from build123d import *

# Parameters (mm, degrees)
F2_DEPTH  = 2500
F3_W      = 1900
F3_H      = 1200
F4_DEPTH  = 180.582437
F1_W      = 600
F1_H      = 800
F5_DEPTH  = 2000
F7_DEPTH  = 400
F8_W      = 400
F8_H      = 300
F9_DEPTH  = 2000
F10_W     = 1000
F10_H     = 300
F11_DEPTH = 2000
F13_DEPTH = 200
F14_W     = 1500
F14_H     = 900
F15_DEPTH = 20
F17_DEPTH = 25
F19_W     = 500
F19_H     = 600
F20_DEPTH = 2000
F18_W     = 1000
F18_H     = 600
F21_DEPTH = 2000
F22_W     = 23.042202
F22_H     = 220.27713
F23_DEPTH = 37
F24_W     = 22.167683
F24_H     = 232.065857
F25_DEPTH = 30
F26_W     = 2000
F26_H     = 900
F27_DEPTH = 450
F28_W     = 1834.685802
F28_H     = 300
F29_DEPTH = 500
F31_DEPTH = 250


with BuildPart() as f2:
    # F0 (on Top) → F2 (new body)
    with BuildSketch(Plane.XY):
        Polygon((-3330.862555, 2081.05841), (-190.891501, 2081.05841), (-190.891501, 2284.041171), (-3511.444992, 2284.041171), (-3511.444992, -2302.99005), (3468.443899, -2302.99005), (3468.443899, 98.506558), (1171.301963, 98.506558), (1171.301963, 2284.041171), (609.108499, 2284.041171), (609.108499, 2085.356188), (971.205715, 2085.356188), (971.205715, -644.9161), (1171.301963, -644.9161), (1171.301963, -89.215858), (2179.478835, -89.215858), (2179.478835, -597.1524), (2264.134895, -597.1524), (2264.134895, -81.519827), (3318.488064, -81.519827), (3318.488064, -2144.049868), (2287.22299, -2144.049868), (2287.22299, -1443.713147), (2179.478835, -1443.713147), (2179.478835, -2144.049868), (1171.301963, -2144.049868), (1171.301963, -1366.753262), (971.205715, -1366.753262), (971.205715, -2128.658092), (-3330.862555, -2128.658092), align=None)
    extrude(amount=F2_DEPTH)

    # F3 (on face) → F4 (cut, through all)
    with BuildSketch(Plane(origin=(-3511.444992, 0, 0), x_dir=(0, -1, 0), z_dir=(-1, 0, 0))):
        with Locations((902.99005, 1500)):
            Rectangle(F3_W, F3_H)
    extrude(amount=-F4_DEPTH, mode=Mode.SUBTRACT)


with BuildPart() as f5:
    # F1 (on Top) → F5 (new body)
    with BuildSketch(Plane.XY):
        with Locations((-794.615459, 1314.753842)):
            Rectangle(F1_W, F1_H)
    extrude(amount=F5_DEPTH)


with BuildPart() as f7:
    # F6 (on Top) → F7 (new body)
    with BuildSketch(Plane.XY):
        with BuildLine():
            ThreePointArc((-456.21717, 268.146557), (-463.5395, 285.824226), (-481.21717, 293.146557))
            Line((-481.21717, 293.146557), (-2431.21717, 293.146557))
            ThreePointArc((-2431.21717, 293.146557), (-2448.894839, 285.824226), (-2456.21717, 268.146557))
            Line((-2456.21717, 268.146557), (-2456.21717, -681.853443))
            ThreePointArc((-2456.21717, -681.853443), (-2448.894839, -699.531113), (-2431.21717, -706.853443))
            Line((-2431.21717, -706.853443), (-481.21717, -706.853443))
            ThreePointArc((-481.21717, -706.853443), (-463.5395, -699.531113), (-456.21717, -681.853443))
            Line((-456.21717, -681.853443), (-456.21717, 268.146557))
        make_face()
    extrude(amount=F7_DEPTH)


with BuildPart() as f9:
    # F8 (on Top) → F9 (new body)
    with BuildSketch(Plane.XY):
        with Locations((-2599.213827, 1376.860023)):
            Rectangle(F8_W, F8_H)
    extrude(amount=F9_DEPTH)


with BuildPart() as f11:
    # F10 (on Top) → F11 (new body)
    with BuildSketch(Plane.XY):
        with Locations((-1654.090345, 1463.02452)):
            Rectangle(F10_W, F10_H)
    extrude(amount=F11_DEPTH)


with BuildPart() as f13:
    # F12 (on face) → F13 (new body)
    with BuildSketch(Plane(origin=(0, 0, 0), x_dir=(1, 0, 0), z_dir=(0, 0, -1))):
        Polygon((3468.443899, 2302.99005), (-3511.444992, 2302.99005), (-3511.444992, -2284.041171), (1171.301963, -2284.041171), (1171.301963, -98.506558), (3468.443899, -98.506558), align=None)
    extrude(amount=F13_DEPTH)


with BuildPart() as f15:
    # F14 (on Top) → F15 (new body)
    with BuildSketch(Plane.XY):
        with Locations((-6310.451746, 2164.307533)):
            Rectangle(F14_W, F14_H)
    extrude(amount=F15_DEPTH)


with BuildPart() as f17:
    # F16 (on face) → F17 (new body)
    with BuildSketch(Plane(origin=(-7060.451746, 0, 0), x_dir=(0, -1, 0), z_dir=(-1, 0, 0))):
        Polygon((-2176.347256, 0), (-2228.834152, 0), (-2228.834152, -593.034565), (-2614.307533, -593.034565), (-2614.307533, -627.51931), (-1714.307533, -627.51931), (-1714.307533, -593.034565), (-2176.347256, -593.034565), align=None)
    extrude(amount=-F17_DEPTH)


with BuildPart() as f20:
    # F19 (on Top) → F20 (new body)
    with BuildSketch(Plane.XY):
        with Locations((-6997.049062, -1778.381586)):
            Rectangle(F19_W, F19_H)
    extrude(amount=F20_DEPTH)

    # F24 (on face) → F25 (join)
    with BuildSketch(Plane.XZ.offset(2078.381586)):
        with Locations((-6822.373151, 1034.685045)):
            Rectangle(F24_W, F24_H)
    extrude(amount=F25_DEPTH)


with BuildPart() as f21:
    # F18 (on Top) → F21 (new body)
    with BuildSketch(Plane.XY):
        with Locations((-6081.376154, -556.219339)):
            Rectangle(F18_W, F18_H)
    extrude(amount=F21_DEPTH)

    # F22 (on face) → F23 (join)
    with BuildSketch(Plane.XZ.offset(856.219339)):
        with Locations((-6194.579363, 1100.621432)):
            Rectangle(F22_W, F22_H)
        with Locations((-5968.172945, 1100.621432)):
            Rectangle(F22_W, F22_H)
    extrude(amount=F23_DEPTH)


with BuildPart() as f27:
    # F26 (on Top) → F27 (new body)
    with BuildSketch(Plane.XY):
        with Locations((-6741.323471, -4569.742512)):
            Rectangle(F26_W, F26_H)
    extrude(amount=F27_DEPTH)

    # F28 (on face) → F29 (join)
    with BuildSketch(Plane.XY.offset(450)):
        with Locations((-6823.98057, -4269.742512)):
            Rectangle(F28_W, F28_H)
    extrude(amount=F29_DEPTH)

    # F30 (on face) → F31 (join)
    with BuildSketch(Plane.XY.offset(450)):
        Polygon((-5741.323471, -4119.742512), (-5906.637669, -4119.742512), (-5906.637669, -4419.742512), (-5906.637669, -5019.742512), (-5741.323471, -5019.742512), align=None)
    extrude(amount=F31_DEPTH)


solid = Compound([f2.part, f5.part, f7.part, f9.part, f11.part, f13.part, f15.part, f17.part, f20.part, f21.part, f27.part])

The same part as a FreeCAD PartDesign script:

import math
import FreeCAD as App
import Part
import Sketcher
from FreeCAD import Vector
Q = App.Units.Quantity

doc = App.newDocument("Part")
body = doc.addObject("PartDesign::Body", "Body")

# Sketch on XY plane
sketch1 = body.newObject("Sketcher::SketchObject", "Sketch")
sketch1.AttachmentSupport = (doc.getObject("XY_Plane"), [""])
sketch1.MapMode = "FlatFace"
sketch1.addGeometry(Part.LineSegment(Vector(-3330.862555, 2081.05841, 0), Vector(-190.891501, 2081.05841, 0)), False)
sketch1.addGeometry(Part.LineSegment(Vector(-190.891501, 2081.05841, 0), Vector(-190.891501, 2284.041171, 0)), False)
sketch1.addGeometry(Part.LineSegment(Vector(-190.891501, 2284.041171, 0), Vector(-3511.444992, 2284.041171, 0)), False)
sketch1.addGeometry(Part.LineSegment(Vector(-3511.444992, 2284.041171, 0), Vector(-3511.444992, -2302.99005, 0)), False)
sketch1.addGeometry(Part.LineSegment(Vector(-3511.444992, -2302.99005, 0), Vector(3468.443899, -2302.99005, 0)), False)
sketch1.addGeometry(Part.LineSegment(Vector(3468.443899, -2302.99005, 0), Vector(3468.443899, 98.506558, 0)), False)
sketch1.addGeometry(Part.LineSegment(Vector(3468.443899, 98.506558, 0), Vector(1171.301963, 98.506558, 0)), False)
sketch1.addGeometry(Part.LineSegment(Vector(1171.301963, 98.506558, 0), Vector(1171.301963, 2284.041171, 0)), False)
sketch1.addGeometry(Part.LineSegment(Vector(1171.301963, 2284.041171, 0), Vector(609.108499, 2284.041171, 0)), False)
sketch1.addGeometry(Part.LineSegment(Vector(609.108499, 2284.041171, 0), Vector(609.108499, 2085.356188, 0)), False)
sketch1.addGeometry(Part.LineSegment(Vector(609.108499, 2085.356188, 0), Vector(971.205715, 2085.356188, 0)), False)
sketch1.addGeometry(Part.LineSegment(Vector(971.205715, 2085.356188, 0), Vector(971.205715, -644.9161, 0)), False)
sketch1.addGeometry(Part.LineSegment(Vector(971.205715, -644.9161, 0), Vector(1171.301963, -644.9161, 0)), False)
sketch1.addGeometry(Part.LineSegment(Vector(1171.301963, -644.9161, 0), Vector(1171.301963, -89.215858, 0)), False)
sketch1.addGeometry(Part.LineSegment(Vector(1171.301963, -89.215858, 0), Vector(2179.478835, -89.215858, 0)), False)
sketch1.addGeometry(Part.LineSegment(Vector(2179.478835, -89.215858, 0), Vector(2179.478835, -597.1524, 0)), False)
sketch1.addGeometry(Part.LineSegment(Vector(2179.478835, -597.1524, 0), Vector(2264.134895, -597.1524, 0)), False)
sketch1.addGeometry(Part.LineSegment(Vector(2264.134895, -597.1524, 0), Vector(2264.134895, -81.519827, 0)), False)
sketch1.addGeometry(Part.LineSegment(Vector(2264.134895, -81.519827, 0), Vector(3318.488064, -81.519827, 0)), False)
sketch1.addGeometry(Part.LineSegment(Vector(3318.488064, -81.519827, 0), Vector(3318.488064, -2144.049868, 0)), False)
sketch1.addGeometry(Part.LineSegment(Vector(3318.488064, -2144.049868, 0), Vector(2287.22299, -2144.049868, 0)), False)
sketch1.addGeometry(Part.LineSegment(Vector(2287.22299, -2144.049868, 0), Vector(2287.22299, -1443.713147, 0)), False)
sketch1.addGeometry(Part.LineSegment(Vector(2287.22299, -1443.713147, 0), Vector(2179.478835, -1443.713147, 0)), False)
sketch1.addGeometry(Part.LineSegment(Vector(2179.478835, -1443.713147, 0), Vector(2179.478835, -2144.049868, 0)), False)
sketch1.addGeometry(Part.LineSegment(Vector(2179.478835, -2144.049868, 0), Vector(1171.301963, -2144.049868, 0)), False)
sketch1.addGeometry(Part.LineSegment(Vector(1171.301963, -2144.049868, 0), Vector(1171.301963, -1366.753262, 0)), False)
sketch1.addGeometry(Part.LineSegment(Vector(1171.301963, -1366.753262, 0), Vector(971.205715, -1366.753262, 0)), False)
sketch1.addGeometry(Part.LineSegment(Vector(971.205715, -1366.753262, 0), Vector(971.205715, -2128.658092, 0)), False)
sketch1.addGeometry(Part.LineSegment(Vector(971.205715, -2128.658092, 0), Vector(-3330.862555, -2128.658092, 0)), False)
sketch1.addGeometry(Part.LineSegment(Vector(-3330.862555, -2128.658092, 0), Vector(-3330.862555, 2081.05841, 0)), False)
sketch1.addConstraint(Sketcher.Constraint("Coincident", 0, 2, 1, 1))
sketch1.addConstraint(Sketcher.Constraint("Coincident", 1, 2, 2, 1))
sketch1.addConstraint(Sketcher.Constraint("Coincident", 2, 2, 3, 1))
sketch1.addConstraint(Sketcher.Constraint("Coincident", 3, 2, 4, 1))
sketch1.addConstraint(Sketcher.Constraint("Coincident", 4, 2, 5, 1))
sketch1.addConstraint(Sketcher.Constraint("Coincident", 5, 2, 6, 1))
sketch1.addConstraint(Sketcher.Constraint("Coincident", 6, 2, 7, 1))
sketch1.addConstraint(Sketcher.Constraint("Coincident", 7, 2, 8, 1))
sketch1.addConstraint(Sketcher.Constraint("Coincident", 8, 2, 9, 1))
sketch1.addConstraint(Sketcher.Constraint("Coincident", 9, 2, 10, 1))
sketch1.addConstraint(Sketcher.Constraint("Coincident", 10, 2, 11, 1))
sketch1.addConstraint(Sketcher.Constraint("Coincident", 11, 2, 12, 1))
sketch1.addConstraint(Sketcher.Constraint("Coincident", 12, 2, 13, 1))
sketch1.addConstraint(Sketcher.Constraint("Coincident", 13, 2, 14, 1))
sketch1.addConstraint(Sketcher.Constraint("Coincident", 14, 2, 15, 1))
sketch1.addConstraint(Sketcher.Constraint("Coincident", 15, 2, 16, 1))
sketch1.addConstraint(Sketcher.Constraint("Coincident", 16, 2, 17, 1))
sketch1.addConstraint(Sketcher.Constraint("Coincident", 17, 2, 18, 1))
sketch1.addConstraint(Sketcher.Constraint("Coincident", 18, 2, 19, 1))
sketch1.addConstraint(Sketcher.Constraint("Coincident", 19, 2, 20, 1))
sketch1.addConstraint(Sketcher.Constraint("Coincident", 20, 2, 21, 1))
sketch1.addConstraint(Sketcher.Constraint("Coincident", 21, 2, 22, 1))
sketch1.addConstraint(Sketcher.Constraint("Coincident", 22, 2, 23, 1))
sketch1.addConstraint(Sketcher.Constraint("Coincident", 23, 2, 24, 1))
sketch1.addConstraint(Sketcher.Constraint("Coincident", 24, 2, 25, 1))
sketch1.addConstraint(Sketcher.Constraint("Coincident", 25, 2, 26, 1))
sketch1.addConstraint(Sketcher.Constraint("Coincident", 26, 2, 27, 1))
sketch1.addConstraint(Sketcher.Constraint("Coincident", 27, 2, 28, 1))
sketch1.addConstraint(Sketcher.Constraint("Coincident", 28, 2, 29, 1))
sketch1.addConstraint(Sketcher.Constraint("Coincident", 29, 2, 0, 1))
sketch1.addConstraint(Sketcher.Constraint("Horizontal", 0))
sketch1.addConstraint(Sketcher.Constraint("Vertical", 1))
sketch1.addConstraint(Sketcher.Constraint("Horizontal", 2))
sketch1.addConstraint(Sketcher.Constraint("Vertical", 3))
sketch1.addConstraint(Sketcher.Constraint("Horizontal", 4))
sketch1.addConstraint(Sketcher.Constraint("Vertical", 5))
sketch1.addConstraint(Sketcher.Constraint("Horizontal", 6))
sketch1.addConstraint(Sketcher.Constraint("Vertical", 7))
sketch1.addConstraint(Sketcher.Constraint("Horizontal", 8))
sketch1.addConstraint(Sketcher.Constraint("Vertical", 9))
sketch1.addConstraint(Sketcher.Constraint("Horizontal", 10))
sketch1.addConstraint(Sketcher.Constraint("Vertical", 11))
sketch1.addConstraint(Sketcher.Constraint("Horizontal", 12))
sketch1.addConstraint(Sketcher.Constraint("Vertical", 13))
sketch1.addConstraint(Sketcher.Constraint("Horizontal", 14))
sketch1.addConstraint(Sketcher.Constraint("Vertical", 15))
sketch1.addConstraint(Sketcher.Constraint("Horizontal", 16))
sketch1.addConstraint(Sketcher.Constraint("Vertical", 17))
sketch1.addConstraint(Sketcher.Constraint("Horizontal", 18))
sketch1.addConstraint(Sketcher.Constraint("Vertical", 19))
sketch1.addConstraint(Sketcher.Constraint("Horizontal", 20))
sketch1.addConstraint(Sketcher.Constraint("Vertical", 21))
sketch1.addConstraint(Sketcher.Constraint("Horizontal", 22))
sketch1.addConstraint(Sketcher.Constraint("Vertical", 23))
sketch1.addConstraint(Sketcher.Constraint("Horizontal", 24))
sketch1.addConstraint(Sketcher.Constraint("Vertical", 25))
sketch1.addConstraint(Sketcher.Constraint("Horizontal", 26))
sketch1.addConstraint(Sketcher.Constraint("Vertical", 27))
sketch1.addConstraint(Sketcher.Constraint("Horizontal", 28))
sketch1.addConstraint(Sketcher.Constraint("Vertical", 29))
sketch1.addConstraint(Sketcher.Constraint("Horizontal", 2, 2, 7, 2))
sketch1.addConstraint(Sketcher.Constraint("Horizontal", 20, 2, 23, 2))
sketch1.addConstraint(Sketcher.Constraint("Vertical", 7, 2, 12, 2))
sketch1.addConstraint(Sketcher.Constraint("Vertical", 15, 2, 22, 2))
sketch1.addConstraint(Sketcher.Constraint("Vertical", 13, 2, 24, 2))
sketch1.addConstraint(Sketcher.Constraint("Vertical", 11, 2, 26, 2))
sketch1.addConstraint(Sketcher.Constraint("DistanceX", 1, 2, 8, 2, Q("800 mm")))
sketch1.addConstraint(Sketcher.Constraint("DistanceY", 29, 1, 29, 2, Q("4209.716502 mm")))
sketch1.addConstraint(Sketcher.Constraint("DistanceX", 2, 2, 2, 1, Q("3320.553491 mm")))
sketch1.addConstraint(Sketcher.Constraint("DistanceX", 4, 1, 4, 2, Q("6979.888891 mm")))
sketch1.addConstraint(Sketcher.Constraint("DistanceX", 14, 1, 14, 2, Q("1008.176872 mm")))
sketch1.addConstraint(Sketcher.Constraint("DistanceX", 16, 1, 16, 2, Q("84.65606 mm")))
sketch1.addConstraint(Sketcher.Constraint("DistanceX", 18, 1, 18, 2, Q("1054.353169 mm")))
sketch1.addConstraint(Sketcher.Constraint("DistanceX", 28, 2, 28, 1, Q("4302.06827 mm")))
sketch1.addConstraint(Sketcher.Constraint("DistanceY", 1, 1, 1, 2, Q("202.982761 mm")))
sketch1.addConstraint(Sketcher.Constraint("DistanceY", 3, 2, 3, 1, Q("4587.031221 mm")))
sketch1.addConstraint(Sketcher.Constraint("DistanceY", 11, 2, 11, 1, Q("2730.272288 mm")))
sketch1.addConstraint(Sketcher.Constraint("DistanceY", 13, 1, 13, 2, Q("555.700242 mm")))
sketch1.addConstraint(Sketcher.Constraint("DistanceY", 15, 2, 15, 1, Q("507.936542 mm")))
sketch1.addConstraint(Sketcher.Constraint("DistanceY", 19, 2, 19, 1, Q("2062.530041 mm")))
sketch1.addConstraint(Sketcher.Constraint("DistanceY", 21, 1, 21, 2, Q("700.336721 mm")))
sketch1.addConstraint(Sketcher.Constraint("DistanceY", 27, 2, 27, 1, Q("761.90483 mm")))
sketch1.addConstraint(Sketcher.Constraint("DistanceX", 0, 2, -1, 1, Q("190.891501 mm")))
sketch1.addConstraint(Sketcher.Constraint("DistanceY", 11, 2, -1, 1, Q("644.9161 mm")))
sketch1.addConstraint(Sketcher.Constraint("DistanceX", 0, 1, 0, 2, Q("3139.971054 mm")))
sketch1.addConstraint(Sketcher.Constraint("DistanceX", 6, 2, 6, 1, Q("2297.141936 mm")))
sketch1.addConstraint(Sketcher.Constraint("DistanceX", 20, 2, 20, 1, Q("1031.265074 mm")))
sketch1.addConstraint(Sketcher.Constraint("DistanceY", 5, 1, 5, 2, Q("2401.496608 mm")))
sketch1.addConstraint(Sketcher.Constraint("DistanceY", 9, 2, 9, 1, Q("198.684983 mm")))
sketch1.addConstraint(Sketcher.Constraint("DistanceY", 17, 1, 17, 2, Q("515.632573 mm")))
pad1 = body.newObject("PartDesign::Pad", "Pad")
pad1.Profile = sketch1
pad1.Length = 2500

# Sketch on YZ plane
sketch2 = body.newObject("Sketcher::SketchObject", "Sketch001")
sketch2.AttachmentSupport = (doc.getObject("YZ_Plane"), [""])
sketch2.MapMode = "FlatFace"
sketch2.AttachmentOffset = App.Placement(Vector(0, 0, -3511.444992), App.Rotation())
sketch2.addGeometry(Part.LineSegment(Vector(47.00995, 2100, 0), Vector(47.00995, 900, 0)), False)
sketch2.addGeometry(Part.LineSegment(Vector(47.00995, 900, 0), Vector(-1852.99005, 900, 0)), False)
sketch2.addGeometry(Part.LineSegment(Vector(-1852.99005, 900, 0), Vector(-1852.99005, 2100, 0)), False)
sketch2.addGeometry(Part.LineSegment(Vector(-1852.99005, 2100, 0), Vector(47.00995, 2100, 0)), False)
sketch2.addConstraint(Sketcher.Constraint("Coincident", 0, 2, 1, 1))
sketch2.addConstraint(Sketcher.Constraint("Coincident", 1, 2, 2, 1))
sketch2.addConstraint(Sketcher.Constraint("Coincident", 2, 2, 3, 1))
sketch2.addConstraint(Sketcher.Constraint("Coincident", 3, 2, 0, 1))
sketch2.addConstraint(Sketcher.Constraint("Vertical", 0))
sketch2.addConstraint(Sketcher.Constraint("Horizontal", 1))
sketch2.addConstraint(Sketcher.Constraint("Vertical", 2))
sketch2.addConstraint(Sketcher.Constraint("Horizontal", 3))
sketch2.addConstraint(Sketcher.Constraint("DistanceX", 1, 2, 1, 1, Q("1900 mm")))
sketch2.addConstraint(Sketcher.Constraint("DistanceY", 0, 2, 0, 1, Q("1200 mm")))
sketch2.addConstraint(Sketcher.Constraint("DistanceY", -1, 1, 0, 2, Q("900 mm")))
sketch2.addConstraint(Sketcher.Constraint("DistanceX", -1, 1, 0, 2, Q("47.00995 mm")))
pocket1 = body.newObject("PartDesign::Pocket", "Pocket")
pocket1.Profile = sketch2
pocket1.Length = 180.582437
pocket1.Reversed = True
body2 = doc.addObject("PartDesign::Body", "Body001")

# Sketch on XY plane
sketch3 = body2.newObject("Sketcher::SketchObject", "Sketch002")
sketch3.AttachmentSupport = (doc.getObject("XY_Plane001"), [""])
sketch3.MapMode = "FlatFace"
sketch3.addGeometry(Part.LineSegment(Vector(-1094.615459, 1714.753842, 0), Vector(-1094.615459, 914.753842, 0)), False)
sketch3.addGeometry(Part.LineSegment(Vector(-1094.615459, 914.753842, 0), Vector(-494.615459, 914.753842, 0)), False)
sketch3.addGeometry(Part.LineSegment(Vector(-494.615459, 914.753842, 0), Vector(-494.615459, 1714.753842, 0)), False)
sketch3.addGeometry(Part.LineSegment(Vector(-494.615459, 1714.753842, 0), Vector(-1094.615459, 1714.753842, 0)), False)
sketch3.addConstraint(Sketcher.Constraint("Coincident", 0, 2, 1, 1))
sketch3.addConstraint(Sketcher.Constraint("Coincident", 1, 2, 2, 1))
sketch3.addConstraint(Sketcher.Constraint("Coincident", 2, 2, 3, 1))
sketch3.addConstraint(Sketcher.Constraint("Coincident", 3, 2, 0, 1))
sketch3.addConstraint(Sketcher.Constraint("Vertical", 0))
sketch3.addConstraint(Sketcher.Constraint("Horizontal", 1))
sketch3.addConstraint(Sketcher.Constraint("Vertical", 2))
sketch3.addConstraint(Sketcher.Constraint("Horizontal", 3))
sketch3.addConstraint(Sketcher.Constraint("DistanceX", 1, 1, 1, 2, Q("600 mm")))
sketch3.addConstraint(Sketcher.Constraint("DistanceY", 0, 2, 0, 1, Q("800 mm")))
sketch3.addConstraint(Sketcher.Constraint("DistanceX", 0, 2, -1, 1, Q("1094.615459 mm")))
sketch3.addConstraint(Sketcher.Constraint("DistanceY", -1, 1, 0, 2, Q("914.753842 mm")))
pad2 = body2.newObject("PartDesign::Pad", "Pad001")
pad2.Profile = sketch3
pad2.Length = 2000
body3 = doc.addObject("PartDesign::Body", "Body002")

# Sketch on XY plane
sketch4 = body3.newObject("Sketcher::SketchObject", "Sketch003")
sketch4.AttachmentSupport = (doc.getObject("XY_Plane002"), [""])
sketch4.MapMode = "FlatFace"
sketch4.addGeometry(Part.ArcOfCircle(Part.Circle(Vector(-481.21717, 268.146557, 0), Vector(0, 0, 1), 25), math.radians(0), math.radians(90)), False)
sketch4.addGeometry(Part.LineSegment(Vector(-481.21717, 293.146557, 0), Vector(-2431.21717, 293.146557, 0)), False)
sketch4.addGeometry(Part.ArcOfCircle(Part.Circle(Vector(-2431.217168, 268.146555, 0), Vector(0, 0, 1), 25.000002), math.radians(90.000004), math.radians(179.999996)), False)
sketch4.addGeometry(Part.LineSegment(Vector(-2456.21717, 268.146557, 0), Vector(-2456.21717, -681.853443, 0)), False)
sketch4.addGeometry(Part.ArcOfCircle(Part.Circle(Vector(-2431.21717, -681.853443, 0), Vector(0, 0, 1), 25), math.radians(-180), math.radians(-90)), False)
sketch4.addGeometry(Part.LineSegment(Vector(-2431.21717, -706.853443, 0), Vector(-481.21717, -706.853443, 0)), False)
sketch4.addGeometry(Part.ArcOfCircle(Part.Circle(Vector(-481.217168, -681.853445, 0), Vector(0, 0, 1), 24.999998), math.radians(-90.000004), math.radians(0.000004)), False)
sketch4.addGeometry(Part.LineSegment(Vector(-456.21717, -681.853443, 0), Vector(-456.21717, 268.146557, 0)), False)
sketch4.addConstraint(Sketcher.Constraint("Tangent", 0, 2, 1, 1))
sketch4.addConstraint(Sketcher.Constraint("Tangent", 1, 2, 2, 1))
sketch4.addConstraint(Sketcher.Constraint("Tangent", 2, 2, 3, 1))
sketch4.addConstraint(Sketcher.Constraint("Tangent", 3, 2, 4, 1))
sketch4.addConstraint(Sketcher.Constraint("Tangent", 4, 2, 5, 1))
sketch4.addConstraint(Sketcher.Constraint("Tangent", 5, 2, 6, 1))
sketch4.addConstraint(Sketcher.Constraint("Tangent", 6, 2, 7, 1))
sketch4.addConstraint(Sketcher.Constraint("Tangent", 7, 2, 0, 1))
sketch4.addConstraint(Sketcher.Constraint("Horizontal", 1))
sketch4.addConstraint(Sketcher.Constraint("Vertical", 3))
sketch4.addConstraint(Sketcher.Constraint("Horizontal", 5))
sketch4.addConstraint(Sketcher.Constraint("Vertical", 7))
sketch4.addConstraint(Sketcher.Constraint("Equal", 0, 2))
sketch4.addConstraint(Sketcher.Constraint("Equal", 2, 4))
sketch4.addConstraint(Sketcher.Constraint("Equal", 4, 6))
sketch4.addConstraint(Sketcher.Constraint("Radius", 0, Q("25 mm")))
sketch4.addConstraint(Sketcher.Constraint("DistanceX", 1, 2, 1, 1, Q("1950 mm")))
sketch4.addConstraint(Sketcher.Constraint("DistanceY", 3, 2, 3, 1, Q("950 mm")))
sketch4.addConstraint(Sketcher.Constraint("DistanceX", 0, 3, -1, 1, Q("481.21717 mm")))
sketch4.addConstraint(Sketcher.Constraint("DistanceY", -1, 1, 0, 3, Q("268.146557 mm")))
pad3 = body3.newObject("PartDesign::Pad", "Pad002")
pad3.Profile = sketch4
pad3.Length = 400
body4 = doc.addObject("PartDesign::Body", "Body003")

# Sketch on XY plane
sketch5 = body4.newObject("Sketcher::SketchObject", "Sketch004")
sketch5.AttachmentSupport = (doc.getObject("XY_Plane003"), [""])
sketch5.MapMode = "FlatFace"
sketch5.addGeometry(Part.LineSegment(Vector(-2799.213827, 1526.860023, 0), Vector(-2799.213827, 1226.860023, 0)), False)
sketch5.addGeometry(Part.LineSegment(Vector(-2799.213827, 1226.860023, 0), Vector(-2399.213827, 1226.860023, 0)), False)
sketch5.addGeometry(Part.LineSegment(Vector(-2399.213827, 1226.860023, 0), Vector(-2399.213827, 1526.860023, 0)), False)
sketch5.addGeometry(Part.LineSegment(Vector(-2399.213827, 1526.860023, 0), Vector(-2799.213827, 1526.860023, 0)), False)
sketch5.addConstraint(Sketcher.Constraint("Coincident", 0, 2, 1, 1))
sketch5.addConstraint(Sketcher.Constraint("Coincident", 1, 2, 2, 1))
sketch5.addConstraint(Sketcher.Constraint("Coincident", 2, 2, 3, 1))
sketch5.addConstraint(Sketcher.Constraint("Coincident", 3, 2, 0, 1))
sketch5.addConstraint(Sketcher.Constraint("Vertical", 0))
sketch5.addConstraint(Sketcher.Constraint("Horizontal", 1))
sketch5.addConstraint(Sketcher.Constraint("Vertical", 2))
sketch5.addConstraint(Sketcher.Constraint("Horizontal", 3))
sketch5.addConstraint(Sketcher.Constraint("DistanceX", 1, 1, 1, 2, Q("400 mm")))
sketch5.addConstraint(Sketcher.Constraint("DistanceY", 0, 2, 0, 1, Q("300 mm")))
sketch5.addConstraint(Sketcher.Constraint("DistanceX", 0, 2, -1, 1, Q("2799.213827 mm")))
sketch5.addConstraint(Sketcher.Constraint("DistanceY", -1, 1, 0, 2, Q("1226.860023 mm")))
pad4 = body4.newObject("PartDesign::Pad", "Pad003")
pad4.Profile = sketch5
pad4.Length = 2000
body5 = doc.addObject("PartDesign::Body", "Body004")

# Sketch on XY plane
sketch6 = body5.newObject("Sketcher::SketchObject", "Sketch005")
sketch6.AttachmentSupport = (doc.getObject("XY_Plane004"), [""])
sketch6.MapMode = "FlatFace"
sketch6.addGeometry(Part.LineSegment(Vector(-2154.090345, 1613.02452, 0), Vector(-2154.090345, 1313.02452, 0)), False)
sketch6.addGeometry(Part.LineSegment(Vector(-2154.090345, 1313.02452, 0), Vector(-1154.090345, 1313.02452, 0)), False)
sketch6.addGeometry(Part.LineSegment(Vector(-1154.090345, 1313.02452, 0), Vector(-1154.090345, 1613.02452, 0)), False)
sketch6.addGeometry(Part.LineSegment(Vector(-1154.090345, 1613.02452, 0), Vector(-2154.090345, 1613.02452, 0)), False)
sketch6.addConstraint(Sketcher.Constraint("Coincident", 0, 2, 1, 1))
sketch6.addConstraint(Sketcher.Constraint("Coincident", 1, 2, 2, 1))
sketch6.addConstraint(Sketcher.Constraint("Coincident", 2, 2, 3, 1))
sketch6.addConstraint(Sketcher.Constraint("Coincident", 3, 2, 0, 1))
sketch6.addConstraint(Sketcher.Constraint("Vertical", 0))
sketch6.addConstraint(Sketcher.Constraint("Horizontal", 1))
sketch6.addConstraint(Sketcher.Constraint("Vertical", 2))
sketch6.addConstraint(Sketcher.Constraint("Horizontal", 3))
sketch6.addConstraint(Sketcher.Constraint("DistanceX", 1, 1, 1, 2, Q("1000 mm")))
sketch6.addConstraint(Sketcher.Constraint("DistanceY", 0, 2, 0, 1, Q("300 mm")))
sketch6.addConstraint(Sketcher.Constraint("DistanceY", -1, 1, 0, 2, Q("1313.02452 mm")))
sketch6.addConstraint(Sketcher.Constraint("DistanceX", 0, 2, -1, 1, Q("2154.090345 mm")))
pad5 = body5.newObject("PartDesign::Pad", "Pad004")
pad5.Profile = sketch6
pad5.Length = 2000
body6 = doc.addObject("PartDesign::Body", "Body005")

# Sketch on XY plane
sketch7 = body6.newObject("Sketcher::SketchObject", "Sketch006")
sketch7.AttachmentSupport = (doc.getObject("XY_Plane005"), [""])
sketch7.MapMode = "FlatFace"
sketch7.addGeometry(Part.LineSegment(Vector(3468.443899, -2302.99005, 0), Vector(-3511.444992, -2302.99005, 0)), False)
sketch7.addGeometry(Part.LineSegment(Vector(-3511.444992, -2302.99005, 0), Vector(-3511.444992, 2284.041171, 0)), False)
sketch7.addGeometry(Part.LineSegment(Vector(-3511.444992, 2284.041171, 0), Vector(1171.301963, 2284.041171, 0)), False)
sketch7.addGeometry(Part.LineSegment(Vector(1171.301963, 2284.041171, 0), Vector(1171.301963, 98.506558, 0)), False)
sketch7.addGeometry(Part.LineSegment(Vector(1171.301963, 98.506558, 0), Vector(3468.443899, 98.506558, 0)), False)
sketch7.addGeometry(Part.LineSegment(Vector(3468.443899, 98.506558, 0), Vector(3468.443899, -2302.99005, 0)), False)
sketch7.addConstraint(Sketcher.Constraint("Coincident", 0, 2, 1, 1))
sketch7.addConstraint(Sketcher.Constraint("Coincident", 1, 2, 2, 1))
sketch7.addConstraint(Sketcher.Constraint("Coincident", 2, 2, 3, 1))
sketch7.addConstraint(Sketcher.Constraint("Coincident", 3, 2, 4, 1))
sketch7.addConstraint(Sketcher.Constraint("Coincident", 4, 2, 5, 1))
sketch7.addConstraint(Sketcher.Constraint("Coincident", 5, 2, 0, 1))
sketch7.addConstraint(Sketcher.Constraint("Horizontal", 0))
sketch7.addConstraint(Sketcher.Constraint("Vertical", 1))
sketch7.addConstraint(Sketcher.Constraint("Horizontal", 2))
sketch7.addConstraint(Sketcher.Constraint("Vertical", 3))
sketch7.addConstraint(Sketcher.Constraint("Horizontal", 4))
sketch7.addConstraint(Sketcher.Constraint("Vertical", 5))
sketch7.addConstraint(Sketcher.Constraint("DistanceX", 0, 2, 0, 1, Q("6979.888891 mm")))
sketch7.addConstraint(Sketcher.Constraint("DistanceY", 1, 1, 1, 2, Q("4587.031221 mm")))
sketch7.addConstraint(Sketcher.Constraint("DistanceX", -1, 1, 4, 2, Q("3468.443899 mm")))
sketch7.addConstraint(Sketcher.Constraint("DistanceX", 2, 1, 2, 2, Q("4682.746955 mm")))
sketch7.addConstraint(Sketcher.Constraint("DistanceY", 3, 2, 3, 1, Q("2185.534613 mm")))
sketch7.addConstraint(Sketcher.Constraint("DistanceY", 0, 2, -1, 1, Q("2302.99005 mm")))
pad6 = body6.newObject("PartDesign::Pad", "Pad005")
pad6.Profile = sketch7
pad6.Length = 200
pad6.Reversed = True
body7 = doc.addObject("PartDesign::Body", "Body006")

# Sketch on XY plane
sketch8 = body7.newObject("Sketcher::SketchObject", "Sketch007")
sketch8.AttachmentSupport = (doc.getObject("XY_Plane006"), [""])
sketch8.MapMode = "FlatFace"
sketch8.addGeometry(Part.LineSegment(Vector(-7060.451746, 2614.307533, 0), Vector(-7060.451746, 1714.307533, 0)), False)
sketch8.addGeometry(Part.LineSegment(Vector(-7060.451746, 1714.307533, 0), Vector(-5560.451746, 1714.307533, 0)), False)
sketch8.addGeometry(Part.LineSegment(Vector(-5560.451746, 1714.307533, 0), Vector(-5560.451746, 2614.307533, 0)), False)
sketch8.addGeometry(Part.LineSegment(Vector(-5560.451746, 2614.307533, 0), Vector(-7060.451746, 2614.307533, 0)), False)
sketch8.addConstraint(Sketcher.Constraint("Coincident", 0, 2, 1, 1))
sketch8.addConstraint(Sketcher.Constraint("Coincident", 1, 2, 2, 1))
sketch8.addConstraint(Sketcher.Constraint("Coincident", 2, 2, 3, 1))
sketch8.addConstraint(Sketcher.Constraint("Coincident", 3, 2, 0, 1))
sketch8.addConstraint(Sketcher.Constraint("Vertical", 0))
sketch8.addConstraint(Sketcher.Constraint("Horizontal", 1))
sketch8.addConstraint(Sketcher.Constraint("Vertical", 2))
sketch8.addConstraint(Sketcher.Constraint("Horizontal", 3))
sketch8.addConstraint(Sketcher.Constraint("DistanceX", 1, 1, 1, 2, Q("1500 mm")))
sketch8.addConstraint(Sketcher.Constraint("DistanceY", 0, 2, 0, 1, Q("900 mm")))
sketch8.addConstraint(Sketcher.Constraint("DistanceX", 0, 2, -1, 1, Q("7060.451746 mm")))
sketch8.addConstraint(Sketcher.Constraint("DistanceY", -1, 1, 0, 2, Q("1714.307533 mm")))
pad7 = body7.newObject("PartDesign::Pad", "Pad006")
pad7.Profile = sketch8
pad7.Length = 20
body8 = doc.addObject("PartDesign::Body", "Body007")

# Sketch on YZ plane
sketch9 = body8.newObject("Sketcher::SketchObject", "Sketch008")
sketch9.AttachmentSupport = (doc.getObject("YZ_Plane007"), [""])
sketch9.MapMode = "FlatFace"
sketch9.AttachmentOffset = App.Placement(Vector(0, 0, -7060.451746), App.Rotation())
sketch9.addGeometry(Part.LineSegment(Vector(2176.347256, 0, 0), Vector(2228.834152, 0, 0)), False)
sketch9.addGeometry(Part.LineSegment(Vector(2228.834152, 0, 0), Vector(2228.834152, -593.034565, 0)), False)
sketch9.addGeometry(Part.LineSegment(Vector(2228.834152, -593.034565, 0), Vector(2614.307533, -593.034565, 0)), False)
sketch9.addGeometry(Part.LineSegment(Vector(2614.307533, -593.034565, 0), Vector(2614.307533, -627.51931, 0)), False)
sketch9.addGeometry(Part.LineSegment(Vector(2614.307533, -627.51931, 0), Vector(1714.307533, -627.51931, 0)), False)
sketch9.addGeometry(Part.LineSegment(Vector(1714.307533, -627.51931, 0), Vector(1714.307533, -593.034565, 0)), False)
sketch9.addGeometry(Part.LineSegment(Vector(1714.307533, -593.034565, 0), Vector(2176.347256, -593.034565, 0)), False)
sketch9.addGeometry(Part.LineSegment(Vector(2176.347256, -593.034565, 0), Vector(2176.347256, 0, 0)), False)
sketch9.addConstraint(Sketcher.Constraint("Coincident", 0, 2, 1, 1))
sketch9.addConstraint(Sketcher.Constraint("Coincident", 1, 2, 2, 1))
sketch9.addConstraint(Sketcher.Constraint("Coincident", 2, 2, 3, 1))
sketch9.addConstraint(Sketcher.Constraint("Coincident", 3, 2, 4, 1))
sketch9.addConstraint(Sketcher.Constraint("Coincident", 4, 2, 5, 1))
sketch9.addConstraint(Sketcher.Constraint("Coincident", 5, 2, 6, 1))
sketch9.addConstraint(Sketcher.Constraint("Coincident", 6, 2, 7, 1))
sketch9.addConstraint(Sketcher.Constraint("Coincident", 7, 2, 0, 1))
sketch9.addConstraint(Sketcher.Constraint("Horizontal", 0))
sketch9.addConstraint(Sketcher.Constraint("Vertical", 1))
sketch9.addConstraint(Sketcher.Constraint("Horizontal", 2))
sketch9.addConstraint(Sketcher.Constraint("Vertical", 3))
sketch9.addConstraint(Sketcher.Constraint("Horizontal", 4))
sketch9.addConstraint(Sketcher.Constraint("Vertical", 5))
sketch9.addConstraint(Sketcher.Constraint("Horizontal", 6))
sketch9.addConstraint(Sketcher.Constraint("Vertical", 7))
sketch9.addConstraint(Sketcher.Constraint("PointOnObject", 0, 2, -1))
sketch9.addConstraint(Sketcher.Constraint("Horizontal", 2, 2, 5, 2))
sketch9.addConstraint(Sketcher.Constraint("DistanceX", 4, 2, 4, 1, Q("900 mm")))
sketch9.addConstraint(Sketcher.Constraint("DistanceX", 2, 1, 2, 2, Q("385.473381 mm")))
sketch9.addConstraint(Sketcher.Constraint("DistanceX", 0, 1, 0, 2, Q("52.486896 mm")))
sketch9.addConstraint(Sketcher.Constraint("DistanceY", 1, 2, 1, 1, Q("593.034565 mm")))
sketch9.addConstraint(Sketcher.Constraint("DistanceY", 3, 2, 3, 1, Q("34.484745 mm")))
sketch9.addConstraint(Sketcher.Constraint("DistanceX", -1, 1, 0, 2, Q("2228.834152 mm")))
pad8 = body8.newObject("PartDesign::Pad", "Pad007")
pad8.Profile = sketch9
pad8.Length = 25
body9 = doc.addObject("PartDesign::Body", "Body008")

# Sketch on XY plane
sketch10 = body9.newObject("Sketcher::SketchObject", "Sketch009")
sketch10.AttachmentSupport = (doc.getObject("XY_Plane008"), [""])
sketch10.MapMode = "FlatFace"
sketch10.addGeometry(Part.LineSegment(Vector(-7247.049062, -1478.381586, 0), Vector(-7247.049062, -2078.381586, 0)), False)
sketch10.addGeometry(Part.LineSegment(Vector(-7247.049062, -2078.381586, 0), Vector(-6747.049062, -2078.381586, 0)), False)
sketch10.addGeometry(Part.LineSegment(Vector(-6747.049062, -2078.381586, 0), Vector(-6747.049062, -1478.381586, 0)), False)
sketch10.addGeometry(Part.LineSegment(Vector(-6747.049062, -1478.381586, 0), Vector(-7247.049062, -1478.381586, 0)), False)
sketch10.addConstraint(Sketcher.Constraint("Coincident", 0, 2, 1, 1))
sketch10.addConstraint(Sketcher.Constraint("Coincident", 1, 2, 2, 1))
sketch10.addConstraint(Sketcher.Constraint("Coincident", 2, 2, 3, 1))
sketch10.addConstraint(Sketcher.Constraint("Coincident", 3, 2, 0, 1))
sketch10.addConstraint(Sketcher.Constraint("Vertical", 0))
sketch10.addConstraint(Sketcher.Constraint("Horizontal", 1))
sketch10.addConstraint(Sketcher.Constraint("Vertical", 2))
sketch10.addConstraint(Sketcher.Constraint("Horizontal", 3))
sketch10.addConstraint(Sketcher.Constraint("DistanceX", 1, 1, 1, 2, Q("500 mm")))
sketch10.addConstraint(Sketcher.Constraint("DistanceY", 0, 2, 0, 1, Q("600 mm")))
sketch10.addConstraint(Sketcher.Constraint("DistanceX", 0, 2, -1, 1, Q("7247.049062 mm")))
sketch10.addConstraint(Sketcher.Constraint("DistanceY", 0, 2, -1, 1, Q("2078.381586 mm")))
pad9 = body9.newObject("PartDesign::Pad", "Pad008")
pad9.Profile = sketch10
pad9.Length = 2000

# Sketch on XZ plane
sketch11 = body9.newObject("Sketcher::SketchObject", "Sketch010")
sketch11.AttachmentSupport = (doc.getObject("XZ_Plane008"), [""])
sketch11.MapMode = "FlatFace"
sketch11.AttachmentOffset = App.Placement(Vector(0, 0, 2078.381586), App.Rotation())
sketch11.addGeometry(Part.LineSegment(Vector(-6833.456992, 1150.717973, 0), Vector(-6833.456992, 918.652117, 0)), False)
sketch11.addGeometry(Part.LineSegment(Vector(-6833.456992, 918.652117, 0), Vector(-6811.289309, 918.652117, 0)), False)
sketch11.addGeometry(Part.LineSegment(Vector(-6811.289309, 918.652117, 0), Vector(-6811.289309, 1150.717973, 0)), False)
sketch11.addGeometry(Part.LineSegment(Vector(-6811.289309, 1150.717973, 0), Vector(-6833.456992, 1150.717973, 0)), False)
sketch11.addConstraint(Sketcher.Constraint("Coincident", 0, 2, 1, 1))
sketch11.addConstraint(Sketcher.Constraint("Coincident", 1, 2, 2, 1))
sketch11.addConstraint(Sketcher.Constraint("Coincident", 2, 2, 3, 1))
sketch11.addConstraint(Sketcher.Constraint("Coincident", 3, 2, 0, 1))
sketch11.addConstraint(Sketcher.Constraint("Vertical", 0))
sketch11.addConstraint(Sketcher.Constraint("Horizontal", 1))
sketch11.addConstraint(Sketcher.Constraint("Vertical", 2))
sketch11.addConstraint(Sketcher.Constraint("Horizontal", 3))
sketch11.addConstraint(Sketcher.Constraint("DistanceX", 1, 1, 1, 2, Q("22.167683 mm")))
sketch11.addConstraint(Sketcher.Constraint("DistanceY", 0, 2, 0, 1, Q("232.065857 mm")))
sketch11.addConstraint(Sketcher.Constraint("DistanceX", 1, 2, -1, 1, Q("6811.289309 mm")))
sketch11.addConstraint(Sketcher.Constraint("DistanceY", -1, 1, 0, 2, Q("918.652117 mm")))
pad10 = body9.newObject("PartDesign::Pad", "Pad009")
pad10.Profile = sketch11
pad10.Length = 30
body10 = doc.addObject("PartDesign::Body", "Body009")

# Sketch on XY plane
sketch12 = body10.newObject("Sketcher::SketchObject", "Sketch011")
sketch12.AttachmentSupport = (doc.getObject("XY_Plane009"), [""])
sketch12.MapMode = "FlatFace"
sketch12.addGeometry(Part.LineSegment(Vector(-6581.376154, -256.219339, 0), Vector(-6581.376154, -856.219339, 0)), False)
sketch12.addGeometry(Part.LineSegment(Vector(-6581.376154, -856.219339, 0), Vector(-5581.376154, -856.219339, 0)), False)
sketch12.addGeometry(Part.LineSegment(Vector(-5581.376154, -856.219339, 0), Vector(-5581.376154, -256.219339, 0)), False)
sketch12.addGeometry(Part.LineSegment(Vector(-5581.376154, -256.219339, 0), Vector(-6581.376154, -256.219339, 0)), False)
sketch12.addConstraint(Sketcher.Constraint("Coincident", 0, 2, 1, 1))
sketch12.addConstraint(Sketcher.Constraint("Coincident", 1, 2, 2, 1))
sketch12.addConstraint(Sketcher.Constraint("Coincident", 2, 2, 3, 1))
sketch12.addConstraint(Sketcher.Constraint("Coincident", 3, 2, 0, 1))
sketch12.addConstraint(Sketcher.Constraint("Vertical", 0))
sketch12.addConstraint(Sketcher.Constraint("Horizontal", 1))
sketch12.addConstraint(Sketcher.Constraint("Vertical", 2))
sketch12.addConstraint(Sketcher.Constraint("Horizontal", 3))
sketch12.addConstraint(Sketcher.Constraint("DistanceX", 1, 1, 1, 2, Q("1000 mm")))
sketch12.addConstraint(Sketcher.Constraint("DistanceY", 0, 2, 0, 1, Q("600 mm")))
sketch12.addConstraint(Sketcher.Constraint("DistanceY", 0, 2, -1, 1, Q("856.219339 mm")))
sketch12.addConstraint(Sketcher.Constraint("DistanceX", 0, 2, -1, 1, Q("6581.376154 mm")))
pad11 = body10.newObject("PartDesign::Pad", "Pad010")
pad11.Profile = sketch12
pad11.Length = 2000

# Sketch on XZ plane
sketch13 = body10.newObject("Sketcher::SketchObject", "Sketch012")
sketch13.AttachmentSupport = (doc.getObject("XZ_Plane009"), [""])
sketch13.MapMode = "FlatFace"
sketch13.AttachmentOffset = App.Placement(Vector(0, 0, 856.219339), App.Rotation())
sketch13.addGeometry(Part.LineSegment(Vector(-6206.100464, 1210.759997, 0), Vector(-6206.100464, 990.482867, 0)), False)
sketch13.addGeometry(Part.LineSegment(Vector(-6206.100464, 990.482867, 0), Vector(-6183.058262, 990.482867, 0)), False)
sketch13.addGeometry(Part.LineSegment(Vector(-6183.058262, 990.482867, 0), Vector(-6183.058262, 1210.759997, 0)), False)
sketch13.addGeometry(Part.LineSegment(Vector(-6183.058262, 1210.759997, 0), Vector(-6206.100464, 1210.759997, 0)), False)
sketch13.addGeometry(Part.LineSegment(Vector(-5979.694046, 1210.759997, 0), Vector(-5979.694046, 990.482867, 0)), False)
sketch13.addGeometry(Part.LineSegment(Vector(-5979.694046, 990.482867, 0), Vector(-5956.651844, 990.482867, 0)), False)
sketch13.addGeometry(Part.LineSegment(Vector(-5956.651844, 990.482867, 0), Vector(-5956.651844, 1210.759997, 0)), False)
sketch13.addGeometry(Part.LineSegment(Vector(-5956.651844, 1210.759997, 0), Vector(-5979.694046, 1210.759997, 0)), False)
sketch13.addConstraint(Sketcher.Constraint("Coincident", 0, 2, 1, 1))
sketch13.addConstraint(Sketcher.Constraint("Coincident", 1, 2, 2, 1))
sketch13.addConstraint(Sketcher.Constraint("Coincident", 2, 2, 3, 1))
sketch13.addConstraint(Sketcher.Constraint("Coincident", 3, 2, 0, 1))
sketch13.addConstraint(Sketcher.Constraint("Coincident", 4, 2, 5, 1))
sketch13.addConstraint(Sketcher.Constraint("Coincident", 5, 2, 6, 1))
sketch13.addConstraint(Sketcher.Constraint("Coincident", 6, 2, 7, 1))
sketch13.addConstraint(Sketcher.Constraint("Coincident", 7, 2, 4, 1))
sketch13.addConstraint(Sketcher.Constraint("Vertical", 0))
sketch13.addConstraint(Sketcher.Constraint("Horizontal", 1))
sketch13.addConstraint(Sketcher.Constraint("Vertical", 2))
sketch13.addConstraint(Sketcher.Constraint("Horizontal", 3))
sketch13.addConstraint(Sketcher.Constraint("Vertical", 4))
sketch13.addConstraint(Sketcher.Constraint("Horizontal", 5))
sketch13.addConstraint(Sketcher.Constraint("Vertical", 6))
sketch13.addConstraint(Sketcher.Constraint("Horizontal", 7))
sketch13.addConstraint(Sketcher.Constraint("Horizontal", 1, 2, 4, 2))
sketch13.addConstraint(Sketcher.Constraint("Horizontal", 3, 2, 6, 2))
sketch13.addConstraint(Sketcher.Constraint("Equal", 3, 5))
sketch13.addConstraint(Sketcher.Constraint("DistanceX", 5, 1, 5, 2, Q("23.042202 mm")))
sketch13.addConstraint(Sketcher.Constraint("DistanceY", 0, 2, 0, 1, Q("220.27713 mm")))
sketch13.addConstraint(Sketcher.Constraint("DistanceX", 1, 2, -1, 1, Q("6183.058262 mm")))
sketch13.addConstraint(Sketcher.Constraint("DistanceX", 0, 2, 4, 2, Q("226.406418 mm")))
sketch13.addConstraint(Sketcher.Constraint("DistanceY", -1, 1, 0, 2, Q("990.482867 mm")))
pad12 = body10.newObject("PartDesign::Pad", "Pad011")
pad12.Profile = sketch13
pad12.Length = 37
body11 = doc.addObject("PartDesign::Body", "Body010")

# Sketch on XY plane
sketch14 = body11.newObject("Sketcher::SketchObject", "Sketch013")
sketch14.AttachmentSupport = (doc.getObject("XY_Plane010"), [""])
sketch14.MapMode = "FlatFace"
sketch14.addGeometry(Part.LineSegment(Vector(-7741.323471, -4119.742512, 0), Vector(-7741.323471, -5019.742512, 0)), False)
sketch14.addGeometry(Part.LineSegment(Vector(-7741.323471, -5019.742512, 0), Vector(-5741.323471, -5019.742512, 0)), False)
sketch14.addGeometry(Part.LineSegment(Vector(-5741.323471, -5019.742512, 0), Vector(-5741.323471, -4119.742512, 0)), False)
sketch14.addGeometry(Part.LineSegment(Vector(-5741.323471, -4119.742512, 0), Vector(-7741.323471, -4119.742512, 0)), False)
sketch14.addConstraint(Sketcher.Constraint("Coincident", 0, 2, 1, 1))
sketch14.addConstraint(Sketcher.Constraint("Coincident", 1, 2, 2, 1))
sketch14.addConstraint(Sketcher.Constraint("Coincident", 2, 2, 3, 1))
sketch14.addConstraint(Sketcher.Constraint("Coincident", 3, 2, 0, 1))
sketch14.addConstraint(Sketcher.Constraint("Vertical", 0))
sketch14.addConstraint(Sketcher.Constraint("Horizontal", 1))
sketch14.addConstraint(Sketcher.Constraint("Vertical", 2))
sketch14.addConstraint(Sketcher.Constraint("Horizontal", 3))
sketch14.addConstraint(Sketcher.Constraint("DistanceX", 1, 1, 1, 2, Q("2000 mm")))
sketch14.addConstraint(Sketcher.Constraint("DistanceY", 0, 2, 0, 1, Q("900 mm")))
sketch14.addConstraint(Sketcher.Constraint("DistanceX", 0, 2, -1, 1, Q("7741.323471 mm")))
sketch14.addConstraint(Sketcher.Constraint("DistanceY", 0, 2, -1, 1, Q("5019.742512 mm")))
pad13 = body11.newObject("PartDesign::Pad", "Pad012")
pad13.Profile = sketch14
pad13.Length = 450

# Sketch on XY plane
sketch15 = body11.newObject("Sketcher::SketchObject", "Sketch014")
sketch15.AttachmentSupport = (doc.getObject("XY_Plane010"), [""])
sketch15.MapMode = "FlatFace"
sketch15.AttachmentOffset = App.Placement(Vector(0, 0, 450), App.Rotation())
sketch15.addGeometry(Part.LineSegment(Vector(-7741.323471, -4119.742512, 0), Vector(-7741.323471, -4419.742512, 0)), False)
sketch15.addGeometry(Part.LineSegment(Vector(-7741.323471, -4419.742512, 0), Vector(-5906.637669, -4419.742512, 0)), False)
sketch15.addGeometry(Part.LineSegment(Vector(-5906.637669, -4419.742512, 0), Vector(-5906.637669, -4119.742512, 0)), False)
sketch15.addGeometry(Part.LineSegment(Vector(-5906.637669, -4119.742512, 0), Vector(-7741.323471, -4119.742512, 0)), False)
sketch15.addConstraint(Sketcher.Constraint("Coincident", 0, 2, 1, 1))
sketch15.addConstraint(Sketcher.Constraint("Coincident", 1, 2, 2, 1))
sketch15.addConstraint(Sketcher.Constraint("Coincident", 2, 2, 3, 1))
sketch15.addConstraint(Sketcher.Constraint("Coincident", 3, 2, 0, 1))
sketch15.addConstraint(Sketcher.Constraint("Vertical", 0))
sketch15.addConstraint(Sketcher.Constraint("Horizontal", 1))
sketch15.addConstraint(Sketcher.Constraint("Vertical", 2))
sketch15.addConstraint(Sketcher.Constraint("Horizontal", 3))
sketch15.addConstraint(Sketcher.Constraint("DistanceY", 0, 2, 0, 1, Q("300 mm")))
sketch15.addConstraint(Sketcher.Constraint("DistanceX", 1, 1, 1, 2, Q("1834.685802 mm")))
sketch15.addConstraint(Sketcher.Constraint("DistanceX", 0, 2, -1, 1, Q("7741.323471 mm")))
sketch15.addConstraint(Sketcher.Constraint("DistanceY", 0, 2, -1, 1, Q("4419.742512 mm")))
pad14 = body11.newObject("PartDesign::Pad", "Pad013")
pad14.Profile = sketch15
pad14.Length = 500

# Sketch on XY plane
sketch16 = body11.newObject("Sketcher::SketchObject", "Sketch015")
sketch16.AttachmentSupport = (doc.getObject("XY_Plane010"), [""])
sketch16.MapMode = "FlatFace"
sketch16.AttachmentOffset = App.Placement(Vector(0, 0, 450), App.Rotation())
sketch16.addGeometry(Part.LineSegment(Vector(-5741.323471, -4119.742512, 0), Vector(-5906.637669, -4119.742512, 0)), False)
sketch16.addGeometry(Part.LineSegment(Vector(-5906.637669, -4119.742512, 0), Vector(-5906.637669, -5019.742512, 0)), False)
sketch16.addGeometry(Part.LineSegment(Vector(-5906.637669, -5019.742512, 0), Vector(-5741.323471, -5019.742512, 0)), False)
sketch16.addGeometry(Part.LineSegment(Vector(-5741.323471, -5019.742512, 0), Vector(-5741.323471, -4119.742512, 0)), False)
sketch16.addConstraint(Sketcher.Constraint("Coincident", 0, 2, 1, 1))
sketch16.addConstraint(Sketcher.Constraint("Coincident", 1, 2, 2, 1))
sketch16.addConstraint(Sketcher.Constraint("Coincident", 2, 2, 3, 1))
sketch16.addConstraint(Sketcher.Constraint("Coincident", 3, 2, 0, 1))
sketch16.addConstraint(Sketcher.Constraint("Horizontal", 0))
sketch16.addConstraint(Sketcher.Constraint("Vertical", 1))
sketch16.addConstraint(Sketcher.Constraint("Horizontal", 2))
sketch16.addConstraint(Sketcher.Constraint("Vertical", 3))
sketch16.addConstraint(Sketcher.Constraint("DistanceY", 1, 2, 1, 1, Q("900 mm")))
sketch16.addConstraint(Sketcher.Constraint("DistanceX", 0, 2, 0, 1, Q("165.314198 mm")))
sketch16.addConstraint(Sketcher.Constraint("DistanceX", 0, 2, -1, 1, Q("5906.637669 mm")))
sketch16.addConstraint(Sketcher.Constraint("DistanceY", 0, 2, -1, 1, Q("4119.742512 mm")))
pad15 = body11.newObject("PartDesign::Pad", "Pad014")
pad15.Profile = sketch16
pad15.Length = 250

doc.recompute()
